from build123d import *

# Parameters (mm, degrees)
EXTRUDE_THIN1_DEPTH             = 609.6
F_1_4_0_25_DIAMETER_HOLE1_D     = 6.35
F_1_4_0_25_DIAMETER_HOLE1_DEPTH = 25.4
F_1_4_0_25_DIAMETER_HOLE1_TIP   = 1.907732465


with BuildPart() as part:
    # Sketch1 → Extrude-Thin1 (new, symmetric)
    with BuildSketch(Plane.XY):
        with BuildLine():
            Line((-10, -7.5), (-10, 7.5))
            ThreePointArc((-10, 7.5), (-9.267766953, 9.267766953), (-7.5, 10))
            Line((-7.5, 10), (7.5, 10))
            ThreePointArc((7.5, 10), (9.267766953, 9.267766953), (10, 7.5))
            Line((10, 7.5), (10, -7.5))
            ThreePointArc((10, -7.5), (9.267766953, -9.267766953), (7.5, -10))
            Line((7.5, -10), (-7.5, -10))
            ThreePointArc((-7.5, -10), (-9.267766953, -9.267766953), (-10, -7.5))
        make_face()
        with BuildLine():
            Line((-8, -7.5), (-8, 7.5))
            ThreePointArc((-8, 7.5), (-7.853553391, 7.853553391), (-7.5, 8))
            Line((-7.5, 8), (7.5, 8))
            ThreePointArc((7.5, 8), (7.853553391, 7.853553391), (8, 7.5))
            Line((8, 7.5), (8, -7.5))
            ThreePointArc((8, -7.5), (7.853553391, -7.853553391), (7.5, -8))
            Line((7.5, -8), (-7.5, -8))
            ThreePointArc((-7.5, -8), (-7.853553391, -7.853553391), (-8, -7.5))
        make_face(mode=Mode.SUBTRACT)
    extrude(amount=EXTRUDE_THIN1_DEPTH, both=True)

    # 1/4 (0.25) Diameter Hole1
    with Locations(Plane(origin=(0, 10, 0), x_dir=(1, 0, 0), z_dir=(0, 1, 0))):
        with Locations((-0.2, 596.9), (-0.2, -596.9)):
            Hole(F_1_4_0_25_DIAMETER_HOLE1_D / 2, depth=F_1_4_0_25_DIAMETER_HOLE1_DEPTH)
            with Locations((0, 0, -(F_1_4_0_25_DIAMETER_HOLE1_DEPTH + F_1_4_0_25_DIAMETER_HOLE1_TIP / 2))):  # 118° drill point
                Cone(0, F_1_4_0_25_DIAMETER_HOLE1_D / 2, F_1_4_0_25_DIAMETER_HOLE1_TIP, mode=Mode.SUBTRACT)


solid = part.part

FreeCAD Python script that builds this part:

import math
import FreeCAD as App
import Part
import Sketcher

doc = App.newDocument("Part")
body = doc.addObject("PartDesign::Body", "Body")

# Sketch on XY plane
sketch1 = body.newObject("Sketcher::SketchObject", "Sketch")
sketch1.AttachmentSupport = (doc.getObject("XY_Plane"), [""])
sketch1.MapMode = "FlatFace"
sketch1.addGeometry([
    Part.LineSegment(App.Vector(-10, 7.5, 0), App.Vector(-10, -7.5, 0)),  # 0
    Part.ArcOfCircle(Part.Circle(App.Vector(-7.5, -7.5, 0), App.Vector(0, 0, 1), 2.5), math.radians(180), math.radians(270)),  # 1
    Part.LineSegment(App.Vector(-7.5, -10, 0), App.Vector(7.5, -10, 0)),  # 2
    Part.ArcOfCircle(Part.Circle(App.Vector(7.5, -7.5, 0), App.Vector(0, 0, 1), 2.5), math.radians(-90), math.radians(0)),  # 3
    Part.LineSegment(App.Vector(10, -7.5, 0), App.Vector(10, 7.5, 0)),  # 4
    Part.ArcOfCircle(Part.Circle(App.Vector(7.5, 7.5, 0), App.Vector(0, 0, 1), 2.5), math.radians(0), math.radians(90)),  # 5
    Part.LineSegment(App.Vector(7.5, 10, 0), App.Vector(-7.5, 10, 0)),  # 6
    Part.ArcOfCircle(Part.Circle(App.Vector(-7.5, 7.5, 0), App.Vector(0, 0, 1), 2.5), math.radians(90), math.radians(180)),  # 7
    Part.LineSegment(App.Vector(-8, -7.5, 0), App.Vector(-8, 7.5, 0)),  # 8
    Part.ArcOfCircle(Part.Circle(App.Vector(-7.5, 7.5, 0), App.Vector(0, 0, 1), 0.5), math.radians(90), math.radians(180)),  # 9
    Part.LineSegment(App.Vector(-7.5, 8, 0), App.Vector(7.5, 8, 0)),  # 10
    Part.ArcOfCircle(Part.Circle(App.Vector(7.5, 7.5, 0), App.Vector(0, 0, 1), 0.5), math.radians(0), math.radians(90)),  # 11
    Part.LineSegment(App.Vector(8, 7.5, 0), App.Vector(8, -7.5, 0)),  # 12
    Part.ArcOfCircle(Part.Circle(App.Vector(7.5, -7.5, 0), App.Vector(0, 0, 1), 0.5), math.radians(-90), math.radians(0)),  # 13
    Part.LineSegment(App.Vector(7.5, -8, 0), App.Vector(-7.5, -8, 0)),  # 14
    Part.ArcOfCircle(Part.Circle(App.Vector(-7.5, -7.5, 0), App.Vector(0, 0, 1), 0.5), math.radians(180), math.radians(270)),  # 15
], False)
sketch1.addConstraint([
    Sketcher.Constraint("Tangent", 0, 2, 1, 1),
    Sketcher.Constraint("Tangent", 1, 2, 2, 1),
    Sketcher.Constraint("Tangent", 2, 2, 3, 1),
    Sketcher.Constraint("Tangent", 3, 2, 4, 1),
    Sketcher.Constraint("Tangent", 4, 2, 5, 1),
    Sketcher.Constraint("Tangent", 5, 2, 6, 1),
    Sketcher.Constraint("Tangent", 6, 2, 7, 1),
    Sketcher.Constraint("Tangent", 7, 2, 0, 1),
    Sketcher.Constraint("Tangent", 8, 2, 9, 2),
    Sketcher.Constraint("Tangent", 9, 1, 10, 1),
    Sketcher.Constraint("Tangent", 10, 2, 11, 2),
    Sketcher.Constraint("Tangent", 11, 1, 12, 1),
    Sketcher.Constraint("Tangent", 12, 2, 13, 2),
    Sketcher.Constraint("Tangent", 13, 1, 14, 1),
    Sketcher.Constraint("Tangent", 14, 2, 15, 2),
    Sketcher.Constraint("Tangent", 15, 1, 8, 1),
    Sketcher.Constraint("Vertical", 0),
    Sketcher.Constraint("Horizontal", 2),
    Sketcher.Constraint("Vertical", 4),
    Sketcher.Constraint("Horizontal", 6),
    Sketcher.Constraint("Vertical", 8),
    Sketcher.Constraint("Horizontal", 10),
    Sketcher.Constraint("Vertical", 12),
    Sketcher.Constraint("Horizontal", 14),
    Sketcher.Constraint("Coincident", 9, 3, 7, 3),
    Sketcher.Constraint("Coincident", 11, 3, 5, 3),
    Sketcher.Constraint("Coincident", 13, 3, 3, 3),
    Sketcher.Constraint("Equal", 1, 3),
    Sketcher.Constraint("Equal", 3, 5),
    Sketcher.Constraint("Equal", 5, 7),
    Sketcher.Constraint("Equal", 13, 15),
    Sketcher.Constraint("Symmetric", 1, 3, 5, 3, -1, 1),
    Sketcher.Constraint("Equal", 14, 0),
    Sketcher.Constraint("Radius", 1, 2.5),
    Sketcher.Constraint("Radius", 9, 0.5),
    Sketcher.Constraint("DistanceX", 2, 1, 2, 2, 15.0),
])
pad1 = body.newObject("PartDesign::Pad", "Pad")
pad1.Profile = sketch1
pad1.Length = 1219.2
pad1.Midplane = True

# Sketch on XZ plane
sketch2 = body.newObject("Sketcher::SketchObject", "Sketch001")
sketch2.AttachmentSupport = (doc.getObject("XZ_Plane"), [""])
sketch2.MapMode = "FlatFace"
sketch2.AttachmentOffset = App.Placement(App.Vector(0, 0, -10), App.Rotation())
sketch2.addGeometry([
    Part.Circle(App.Vector(-0.2, -596.9, 0), App.Vector(0, 0, 1), 3.2),
    Part.Circle(App.Vector(-0.2, 596.9, 0), App.Vector(0, 0, 1), 3.2),
], False)
sketch2.addConstraint([
    Sketcher.Constraint("Equal", 0, 1),
    Sketcher.Constraint("Symmetric", 0, 3, 1, 3, -1),
    Sketcher.Constraint("Diameter", 0, 6.35),
    Sketcher.Constraint("DistanceX", 0, 3, -1, 1, 0.2),
    Sketcher.Constraint("DistanceY", 0, 3, -1, 1, 596.9),
])
doc.recompute()
hole = body.newObject("PartDesign::Hole", "Hole")
hole.Profile = sketch2
hole.ThreadType = "None"
hole.Diameter = 6.35
hole.DepthType = "Dimension"
hole.Depth = 25.4
hole.DrillPoint = "Angled"
hole.DrillPointAngle = 118
hole.Reversed = True

doc.recompute()
